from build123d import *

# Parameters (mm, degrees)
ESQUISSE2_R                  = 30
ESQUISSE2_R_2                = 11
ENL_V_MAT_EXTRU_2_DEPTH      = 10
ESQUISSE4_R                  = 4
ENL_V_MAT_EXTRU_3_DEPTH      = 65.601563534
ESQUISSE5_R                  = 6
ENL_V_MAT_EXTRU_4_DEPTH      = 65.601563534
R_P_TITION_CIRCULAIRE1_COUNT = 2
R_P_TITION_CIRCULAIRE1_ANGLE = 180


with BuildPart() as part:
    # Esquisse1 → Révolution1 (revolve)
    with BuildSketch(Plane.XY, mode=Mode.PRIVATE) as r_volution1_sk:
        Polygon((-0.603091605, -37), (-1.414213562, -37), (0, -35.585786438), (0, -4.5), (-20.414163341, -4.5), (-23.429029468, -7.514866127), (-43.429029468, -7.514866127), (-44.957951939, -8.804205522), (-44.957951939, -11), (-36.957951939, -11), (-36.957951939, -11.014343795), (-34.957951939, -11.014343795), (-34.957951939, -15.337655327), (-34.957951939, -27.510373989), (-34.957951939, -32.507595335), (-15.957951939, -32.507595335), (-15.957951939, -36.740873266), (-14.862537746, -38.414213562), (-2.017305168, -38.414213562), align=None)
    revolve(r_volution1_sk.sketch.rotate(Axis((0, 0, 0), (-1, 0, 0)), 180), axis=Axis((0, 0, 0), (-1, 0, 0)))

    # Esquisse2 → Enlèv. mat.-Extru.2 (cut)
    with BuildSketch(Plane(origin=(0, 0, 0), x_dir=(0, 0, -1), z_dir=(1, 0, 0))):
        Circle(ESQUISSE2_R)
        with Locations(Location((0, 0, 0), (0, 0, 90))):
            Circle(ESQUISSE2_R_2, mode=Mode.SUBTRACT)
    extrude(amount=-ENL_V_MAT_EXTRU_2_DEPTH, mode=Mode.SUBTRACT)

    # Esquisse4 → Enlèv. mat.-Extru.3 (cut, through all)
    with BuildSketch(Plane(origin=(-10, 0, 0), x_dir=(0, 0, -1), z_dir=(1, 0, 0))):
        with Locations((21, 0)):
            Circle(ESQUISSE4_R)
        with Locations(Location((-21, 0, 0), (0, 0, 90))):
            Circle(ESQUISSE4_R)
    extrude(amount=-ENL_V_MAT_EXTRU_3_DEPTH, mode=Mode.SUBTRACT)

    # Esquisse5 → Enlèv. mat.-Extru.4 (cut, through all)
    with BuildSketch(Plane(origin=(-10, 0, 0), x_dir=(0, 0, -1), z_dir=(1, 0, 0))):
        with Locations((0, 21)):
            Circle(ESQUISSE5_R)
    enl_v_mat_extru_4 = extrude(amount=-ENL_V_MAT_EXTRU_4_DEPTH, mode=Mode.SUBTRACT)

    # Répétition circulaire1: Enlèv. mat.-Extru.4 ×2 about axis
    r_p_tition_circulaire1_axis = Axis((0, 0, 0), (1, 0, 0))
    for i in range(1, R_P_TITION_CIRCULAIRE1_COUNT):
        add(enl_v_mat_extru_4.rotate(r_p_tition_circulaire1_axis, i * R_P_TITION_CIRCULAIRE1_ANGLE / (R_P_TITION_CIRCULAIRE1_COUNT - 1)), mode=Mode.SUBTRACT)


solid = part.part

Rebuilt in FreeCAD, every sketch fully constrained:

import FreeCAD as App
import Part
import Sketcher
Q = App.Units.Quantity


def add_polygon(sketch, points):
    """Adds a closed chain of lines whose ends are joined by coincident constraints."""
    first, n = sketch.GeometryCount, len(points)
    for a, b in zip(points, points[1:] + points[:1]):
        sketch.addGeometry(Part.LineSegment(App.Vector(*a, 0), App.Vector(*b, 0)), False)
    for i in range(n):
        sketch.addConstraint(Sketcher.Constraint("Coincident", first + i, 2, first + (i + 1) % n, 1))

doc = App.newDocument("Part")
body = doc.addObject("PartDesign::Body", "Body")

sketch1 = body.newObject("Sketcher::SketchObject", "Sketch")
sketch1.AttachmentSupport = (doc.getObject("XY_Plane"), [""])
sketch1.MapMode = "FlatFace"
add_polygon(sketch1, [(-0.603, -37), (-1.414, -37), (0, -35.586), (0, -4.5), (-20.414, -4.5), (-23.429, -7.515), (-43.429, -7.515), (-44.958, -8.804), (-44.958, -11), (-36.958, -11), (-36.958, -11.014), (-34.958, -11.014), (-34.958, -32.508), (-15.958, -32.508), (-15.958, -36.741), (-14.863, -38.414), (-2.017, -38.414)])
sketch1.addConstraint([
    Sketcher.Constraint("Horizontal", 0),
    Sketcher.Constraint("Vertical", 2),
    Sketcher.Constraint("Horizontal", 3),
    Sketcher.Constraint("Horizontal", 5),
    Sketcher.Constraint("Vertical", 7),
    Sketcher.Constraint("Horizontal", 8),
    Sketcher.Constraint("Vertical", 9),
    Sketcher.Constraint("Horizontal", 10),
    Sketcher.Constraint("Vertical", 11),
    Sketcher.Constraint("Horizontal", 12),
    Sketcher.Constraint("Vertical", 13),
    Sketcher.Constraint("Horizontal", 15),
    Sketcher.Constraint("PointOnObject", 1, 2, -2),
    Sketcher.Constraint("Parallel", 1, 4),
    Sketcher.Constraint("Parallel", 4, 16),
    Sketcher.Constraint("Equal", 1, 6),
    Sketcher.Constraint("Equal", 6, 14),
    Sketcher.Constraint("Equal", 14, 16),
    Sketcher.Constraint("DistanceX", 5, 2, 5, 1, Q("20 mm")),
    Sketcher.Constraint("DistanceX", 8, 1, 8, 2, Q("8 mm")),
    Sketcher.Constraint("DistanceX", 10, 1, 10, 2, Q("2 mm")),
    Sketcher.Constraint("DistanceX", 12, 1, 12, 2, Q("19 mm")),
    Sketcher.Constraint("Angle", 1, Q("45 deg")),
    Sketcher.Constraint("Distance", 1, Q("2 mm")),
    Sketcher.Constraint("DistanceY", 0, 2, -1, 1, Q("37 mm")),
    Sketcher.Constraint("DistanceY", 7, 2, -1, 1, Q("11 mm")),
    Sketcher.Constraint("DistanceY", 2, 2, -1, 1, Q("4.5 mm")),
    Sketcher.Constraint("DistanceX", 0, 2, 0, 1, Q("0.811122 mm")),
    Sketcher.Constraint("DistanceY", 11, 2, 11, 1, Q("21.493252 mm")),
    Sketcher.Constraint("DistanceX", 3, 2, 3, 1, Q("20.414163 mm")),
    Sketcher.Constraint("DistanceX", 15, 1, 15, 2, Q("12.845233 mm")),
    Sketcher.Constraint("DistanceY", 7, 2, 7, 1, Q("2.195794 mm")),
    Sketcher.Constraint("DistanceY", 9, 2, 9, 1, Q("0.014344 mm")),
    Sketcher.Constraint("DistanceY", 13, 2, 13, 1, Q("4.233278 mm")),
])
revolution = body.newObject("PartDesign::Revolution", "Revolution")
revolution.Profile = sketch1
revolution.ReferenceAxis = (sketch1, ["H_Axis"])
revolution.Angle = 360

sketch2 = body.newObject("Sketcher::SketchObject", "Sketch001")
sketch2.AttachmentSupport = (doc.getObject("YZ_Plane"), [""])
sketch2.MapMode = "FlatFace"
sketch2.addGeometry([
    Part.Circle(App.Vector(0, 0, 0), App.Vector(0, 0, 1), 30),
    Part.Circle(App.Vector(0, 0, 0), App.Vector(0, 0, 1), 11),
], False)
sketch2.addConstraint([
    Sketcher.Constraint("Coincident", 0, 3, -1, 1),
    Sketcher.Constraint("Coincident", 1, 3, -1, 1),
    Sketcher.Constraint("Diameter", 0, Q("60 mm")),
    Sketcher.Constraint("Diameter", 1, Q("22 mm")),
])
pocket1 = body.newObject("PartDesign::Pocket", "Pocket")
pocket1.Profile = sketch2
pocket1.Length = 10

sketch3 = body.newObject("Sketcher::SketchObject", "Sketch002")
sketch3.AttachmentSupport = (doc.getObject("YZ_Plane"), [""])
sketch3.MapMode = "FlatFace"
sketch3.AttachmentOffset = App.Placement(App.Vector(0, 0, -10), App.Rotation())
sketch3.addGeometry([
    Part.Circle(App.Vector(0, -21, 0), App.Vector(0, 0, 1), 4),
    Part.Circle(App.Vector(0, 21, 0), App.Vector(0, 0, 1), 4),
], False)
sketch3.addConstraint([
    Sketcher.Constraint("Equal", 0, 1),
    Sketcher.Constraint("Symmetric", 0, 3, 1, 3, -1, 1),
    Sketcher.Constraint("PointOnObject", 0, 3, -2),
    Sketcher.Constraint("Diameter", 0, Q("8 mm")),
    Sketcher.Constraint("DistanceY", 0, 3, -1, 1, Q("21 mm")),
])
pocket2 = body.newObject("PartDesign::Pocket", "Pocket001")
pocket2.Profile = sketch3
pocket2.Type = "ThroughAll"

sketch4 = body.newObject("Sketcher::SketchObject", "Sketch003")
sketch4.AttachmentSupport = (doc.getObject("YZ_Plane"), [""])
sketch4.MapMode = "FlatFace"
sketch4.AttachmentOffset = App.Placement(App.Vector(0, 0, -10), App.Rotation())
sketch4.addGeometry(Part.Circle(App.Vector(21, 0, 0), App.Vector(0, 0, 1), 6), False)
sketch4.addConstraint([
    Sketcher.Constraint("PointOnObject", 0, 3, -1),
    Sketcher.Constraint("Diameter", 0, Q("12 mm")),
    Sketcher.Constraint("DistanceX", -1, 1, 0, 3, Q("21 mm")),
])
pocket3 = body.newObject("PartDesign::Pocket", "Pocket002")
pocket3.Profile = sketch4
pocket3.Type = "ThroughAll"
doc.recompute()

polarpattern = body.newObject("PartDesign::PolarPattern", "PolarPattern")
polarpattern.Originals = [pocket3]
polarpattern.Axis = (doc.getObject("X_Axis"), [""])
polarpattern.Angle = 360
polarpattern.Occurrences = 2
body.Tip = polarpattern

doc.recompute()
